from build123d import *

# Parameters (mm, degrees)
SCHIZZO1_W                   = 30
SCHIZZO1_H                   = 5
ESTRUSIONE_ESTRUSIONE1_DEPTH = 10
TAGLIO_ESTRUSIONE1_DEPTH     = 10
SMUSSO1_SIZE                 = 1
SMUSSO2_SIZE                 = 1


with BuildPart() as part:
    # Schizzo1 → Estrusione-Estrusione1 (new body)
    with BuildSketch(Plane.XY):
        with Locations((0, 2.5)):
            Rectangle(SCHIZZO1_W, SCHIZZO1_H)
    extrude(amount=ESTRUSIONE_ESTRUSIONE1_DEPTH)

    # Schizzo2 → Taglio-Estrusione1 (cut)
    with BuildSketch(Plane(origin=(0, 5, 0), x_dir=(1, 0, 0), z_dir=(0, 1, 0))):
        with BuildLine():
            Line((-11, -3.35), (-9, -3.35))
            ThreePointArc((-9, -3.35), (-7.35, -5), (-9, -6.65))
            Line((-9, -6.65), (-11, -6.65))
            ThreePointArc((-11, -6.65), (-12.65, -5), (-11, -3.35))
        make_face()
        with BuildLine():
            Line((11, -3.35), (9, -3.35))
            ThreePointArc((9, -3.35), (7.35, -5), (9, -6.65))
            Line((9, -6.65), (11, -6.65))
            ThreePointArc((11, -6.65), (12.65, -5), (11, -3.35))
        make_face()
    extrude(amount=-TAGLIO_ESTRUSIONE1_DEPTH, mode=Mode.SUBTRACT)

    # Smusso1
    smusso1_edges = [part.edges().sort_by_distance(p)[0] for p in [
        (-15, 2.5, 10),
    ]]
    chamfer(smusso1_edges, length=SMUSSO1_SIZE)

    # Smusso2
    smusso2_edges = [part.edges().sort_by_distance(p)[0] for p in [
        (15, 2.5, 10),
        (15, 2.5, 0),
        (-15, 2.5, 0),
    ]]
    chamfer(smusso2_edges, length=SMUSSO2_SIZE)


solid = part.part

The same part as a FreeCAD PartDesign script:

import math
import FreeCAD as App
import Part
import Sketcher

V = App.Vector
Q = App.Units.Quantity


def edges_at(feature, points):
    """Names of the edges that pass closest to the given points."""
    edges = feature.Shape.Edges
    near = lambda p: min(range(len(edges)), key=lambda i: edges[i].distToShape(Part.Vertex(*p))[0])
    return sorted({f"Edge{near(p) + 1}" for p in points})


def add_polygon(sketch, points):
    """Adds a closed chain of lines whose ends are joined by coincident constraints."""
    first, n = sketch.GeometryCount, len(points)
    for a, b in zip(points, points[1:] + points[:1]):
        sketch.addGeometry(Part.LineSegment(App.Vector(*a, 0), App.Vector(*b, 0)), False)
    for i in range(n):
        sketch.addConstraint(Sketcher.Constraint("Coincident", first + i, 2, first + (i + 1) % n, 1))

doc = App.newDocument("Part")
body = doc.addObject("PartDesign::Body", "Body")

# Sketch on XY plane
sketch1 = doc.addObject("Sketcher::SketchObject", "Sketch")
body.addObject(sketch1)
sketch1.AttachmentSupport = (doc.XY_Plane, [""])
sketch1.MapMode = "FlatFace"
add_polygon(sketch1, [(-15, 5), (-15, 0), (15, 0), (15, 5)])  # lines 0-3
sketch1.addConstraint([
    Sketcher.Constraint("Vertical", 0),
    Sketcher.Constraint("Horizontal", 1),
    Sketcher.Constraint("Vertical", 2),
    Sketcher.Constraint("Horizontal", 3),
    Sketcher.Constraint("Symmetric", 0, 2, 1, 2, -1, 1),
    Sketcher.Constraint("DistanceX", 1, 1, 1, 2, Q("30 mm")),
    Sketcher.Constraint("DistanceY", 0, 2, 0, 1, Q("5 mm")),
])
pad1 = doc.addObject("PartDesign::Pad", "Pad")
body.addObject(pad1)
pad1.Profile = sketch1
pad1.Length = 10

# Sketch on XZ plane
sketch2 = doc.addObject("Sketcher::SketchObject", "Sketch001")
body.addObject(sketch2)
sketch2.AttachmentSupport = (doc.XZ_Plane, [""])
sketch2.MapMode = "FlatFace"
sketch2.AttachmentOffset = App.Placement(V(0, 0, -5), App.Rotation())
sketch2.addGeometry([
    Part.LineSegment(V(-9, 3.35, 0), V(-11, 3.35, 0)),  # 0
    Part.ArcOfCircle(Part.Circle(V(-11, 5, 0), V(0, 0, 1), 1.65), math.radians(90), math.radians(270)),  # 1
    Part.LineSegment(V(-11, 6.65, 0), V(-9, 6.65, 0)),  # 2
    Part.ArcOfCircle(Part.Circle(V(-9, 5, 0), V(0, 0, 1), 1.65), math.radians(-90), math.radians(90)),  # 3
    Part.LineSegment(V(11, 3.35, 0), V(9, 3.35, 0)),  # 4
    Part.ArcOfCircle(Part.Circle(V(9, 5, 0), V(0, 0, 1), 1.65), math.radians(90), math.radians(270)),  # 5
    Part.LineSegment(V(9, 6.65, 0), V(11, 6.65, 0)),  # 6
    Part.ArcOfCircle(Part.Circle(V(11, 5, 0), V(0, 0, 1), 1.65), math.radians(-90), math.radians(90)),  # 7
], False)
sketch2.addConstraint([
    Sketcher.Constraint("Tangent", 0, 2, 1, 2),
    Sketcher.Constraint("Tangent", 1, 1, 2, 1),
    Sketcher.Constraint("Tangent", 2, 2, 3, 2),
    Sketcher.Constraint("Tangent", 3, 1, 0, 1),
    Sketcher.Constraint("Tangent", 4, 2, 5, 2),
    Sketcher.Constraint("Tangent", 5, 1, 6, 1),
    Sketcher.Constraint("Tangent", 6, 2, 7, 2),
    Sketcher.Constraint("Tangent", 7, 1, 4, 1),
    Sketcher.Constraint("Horizontal", 0),
    Sketcher.Constraint("Horizontal", 2),
    Sketcher.Constraint("Horizontal", 4),
    Sketcher.Constraint("Horizontal", 6),
    Sketcher.Constraint("Equal", 3, 5),
    Sketcher.Constraint("Symmetric", 3, 3, 5, 3, -2),
    Sketcher.Constraint("Equal", 2, 4),
    Sketcher.Constraint("DistanceX", 0, 2, 0, 1, Q("2 mm")),
    Sketcher.Constraint("Radius", 1, Q("1.65 mm")),
    Sketcher.Constraint("DistanceX", 1, 3, -1, 1, Q("11 mm")),
    Sketcher.Constraint("DistanceY", -1, 1, 1, 3, Q("5 mm")),
])
pocket1 = doc.addObject("PartDesign::Pocket", "Pocket")
body.addObject(pocket1)
pocket1.Profile = sketch2
pocket1.Length = 10
pocket1.Reversed = True
doc.recompute()

chamfer = doc.addObject("PartDesign::Chamfer", "Chamfer")
body.addObject(chamfer)
chamfer.Base = (pocket1, edges_at(pocket1, [(-15, 2.5, 10)]))
chamfer.Size = 1
doc.recompute()

chamfer2 = doc.addObject("PartDesign::Chamfer", "Chamfer001")
body.addObject(chamfer2)
chamfer2.Base = (chamfer, edges_at(chamfer, [(15, 2.5, 10), (15, 2.5, 0), (-15, 2.5, 0)]))
chamfer2.Size = 1

doc.recompute()
